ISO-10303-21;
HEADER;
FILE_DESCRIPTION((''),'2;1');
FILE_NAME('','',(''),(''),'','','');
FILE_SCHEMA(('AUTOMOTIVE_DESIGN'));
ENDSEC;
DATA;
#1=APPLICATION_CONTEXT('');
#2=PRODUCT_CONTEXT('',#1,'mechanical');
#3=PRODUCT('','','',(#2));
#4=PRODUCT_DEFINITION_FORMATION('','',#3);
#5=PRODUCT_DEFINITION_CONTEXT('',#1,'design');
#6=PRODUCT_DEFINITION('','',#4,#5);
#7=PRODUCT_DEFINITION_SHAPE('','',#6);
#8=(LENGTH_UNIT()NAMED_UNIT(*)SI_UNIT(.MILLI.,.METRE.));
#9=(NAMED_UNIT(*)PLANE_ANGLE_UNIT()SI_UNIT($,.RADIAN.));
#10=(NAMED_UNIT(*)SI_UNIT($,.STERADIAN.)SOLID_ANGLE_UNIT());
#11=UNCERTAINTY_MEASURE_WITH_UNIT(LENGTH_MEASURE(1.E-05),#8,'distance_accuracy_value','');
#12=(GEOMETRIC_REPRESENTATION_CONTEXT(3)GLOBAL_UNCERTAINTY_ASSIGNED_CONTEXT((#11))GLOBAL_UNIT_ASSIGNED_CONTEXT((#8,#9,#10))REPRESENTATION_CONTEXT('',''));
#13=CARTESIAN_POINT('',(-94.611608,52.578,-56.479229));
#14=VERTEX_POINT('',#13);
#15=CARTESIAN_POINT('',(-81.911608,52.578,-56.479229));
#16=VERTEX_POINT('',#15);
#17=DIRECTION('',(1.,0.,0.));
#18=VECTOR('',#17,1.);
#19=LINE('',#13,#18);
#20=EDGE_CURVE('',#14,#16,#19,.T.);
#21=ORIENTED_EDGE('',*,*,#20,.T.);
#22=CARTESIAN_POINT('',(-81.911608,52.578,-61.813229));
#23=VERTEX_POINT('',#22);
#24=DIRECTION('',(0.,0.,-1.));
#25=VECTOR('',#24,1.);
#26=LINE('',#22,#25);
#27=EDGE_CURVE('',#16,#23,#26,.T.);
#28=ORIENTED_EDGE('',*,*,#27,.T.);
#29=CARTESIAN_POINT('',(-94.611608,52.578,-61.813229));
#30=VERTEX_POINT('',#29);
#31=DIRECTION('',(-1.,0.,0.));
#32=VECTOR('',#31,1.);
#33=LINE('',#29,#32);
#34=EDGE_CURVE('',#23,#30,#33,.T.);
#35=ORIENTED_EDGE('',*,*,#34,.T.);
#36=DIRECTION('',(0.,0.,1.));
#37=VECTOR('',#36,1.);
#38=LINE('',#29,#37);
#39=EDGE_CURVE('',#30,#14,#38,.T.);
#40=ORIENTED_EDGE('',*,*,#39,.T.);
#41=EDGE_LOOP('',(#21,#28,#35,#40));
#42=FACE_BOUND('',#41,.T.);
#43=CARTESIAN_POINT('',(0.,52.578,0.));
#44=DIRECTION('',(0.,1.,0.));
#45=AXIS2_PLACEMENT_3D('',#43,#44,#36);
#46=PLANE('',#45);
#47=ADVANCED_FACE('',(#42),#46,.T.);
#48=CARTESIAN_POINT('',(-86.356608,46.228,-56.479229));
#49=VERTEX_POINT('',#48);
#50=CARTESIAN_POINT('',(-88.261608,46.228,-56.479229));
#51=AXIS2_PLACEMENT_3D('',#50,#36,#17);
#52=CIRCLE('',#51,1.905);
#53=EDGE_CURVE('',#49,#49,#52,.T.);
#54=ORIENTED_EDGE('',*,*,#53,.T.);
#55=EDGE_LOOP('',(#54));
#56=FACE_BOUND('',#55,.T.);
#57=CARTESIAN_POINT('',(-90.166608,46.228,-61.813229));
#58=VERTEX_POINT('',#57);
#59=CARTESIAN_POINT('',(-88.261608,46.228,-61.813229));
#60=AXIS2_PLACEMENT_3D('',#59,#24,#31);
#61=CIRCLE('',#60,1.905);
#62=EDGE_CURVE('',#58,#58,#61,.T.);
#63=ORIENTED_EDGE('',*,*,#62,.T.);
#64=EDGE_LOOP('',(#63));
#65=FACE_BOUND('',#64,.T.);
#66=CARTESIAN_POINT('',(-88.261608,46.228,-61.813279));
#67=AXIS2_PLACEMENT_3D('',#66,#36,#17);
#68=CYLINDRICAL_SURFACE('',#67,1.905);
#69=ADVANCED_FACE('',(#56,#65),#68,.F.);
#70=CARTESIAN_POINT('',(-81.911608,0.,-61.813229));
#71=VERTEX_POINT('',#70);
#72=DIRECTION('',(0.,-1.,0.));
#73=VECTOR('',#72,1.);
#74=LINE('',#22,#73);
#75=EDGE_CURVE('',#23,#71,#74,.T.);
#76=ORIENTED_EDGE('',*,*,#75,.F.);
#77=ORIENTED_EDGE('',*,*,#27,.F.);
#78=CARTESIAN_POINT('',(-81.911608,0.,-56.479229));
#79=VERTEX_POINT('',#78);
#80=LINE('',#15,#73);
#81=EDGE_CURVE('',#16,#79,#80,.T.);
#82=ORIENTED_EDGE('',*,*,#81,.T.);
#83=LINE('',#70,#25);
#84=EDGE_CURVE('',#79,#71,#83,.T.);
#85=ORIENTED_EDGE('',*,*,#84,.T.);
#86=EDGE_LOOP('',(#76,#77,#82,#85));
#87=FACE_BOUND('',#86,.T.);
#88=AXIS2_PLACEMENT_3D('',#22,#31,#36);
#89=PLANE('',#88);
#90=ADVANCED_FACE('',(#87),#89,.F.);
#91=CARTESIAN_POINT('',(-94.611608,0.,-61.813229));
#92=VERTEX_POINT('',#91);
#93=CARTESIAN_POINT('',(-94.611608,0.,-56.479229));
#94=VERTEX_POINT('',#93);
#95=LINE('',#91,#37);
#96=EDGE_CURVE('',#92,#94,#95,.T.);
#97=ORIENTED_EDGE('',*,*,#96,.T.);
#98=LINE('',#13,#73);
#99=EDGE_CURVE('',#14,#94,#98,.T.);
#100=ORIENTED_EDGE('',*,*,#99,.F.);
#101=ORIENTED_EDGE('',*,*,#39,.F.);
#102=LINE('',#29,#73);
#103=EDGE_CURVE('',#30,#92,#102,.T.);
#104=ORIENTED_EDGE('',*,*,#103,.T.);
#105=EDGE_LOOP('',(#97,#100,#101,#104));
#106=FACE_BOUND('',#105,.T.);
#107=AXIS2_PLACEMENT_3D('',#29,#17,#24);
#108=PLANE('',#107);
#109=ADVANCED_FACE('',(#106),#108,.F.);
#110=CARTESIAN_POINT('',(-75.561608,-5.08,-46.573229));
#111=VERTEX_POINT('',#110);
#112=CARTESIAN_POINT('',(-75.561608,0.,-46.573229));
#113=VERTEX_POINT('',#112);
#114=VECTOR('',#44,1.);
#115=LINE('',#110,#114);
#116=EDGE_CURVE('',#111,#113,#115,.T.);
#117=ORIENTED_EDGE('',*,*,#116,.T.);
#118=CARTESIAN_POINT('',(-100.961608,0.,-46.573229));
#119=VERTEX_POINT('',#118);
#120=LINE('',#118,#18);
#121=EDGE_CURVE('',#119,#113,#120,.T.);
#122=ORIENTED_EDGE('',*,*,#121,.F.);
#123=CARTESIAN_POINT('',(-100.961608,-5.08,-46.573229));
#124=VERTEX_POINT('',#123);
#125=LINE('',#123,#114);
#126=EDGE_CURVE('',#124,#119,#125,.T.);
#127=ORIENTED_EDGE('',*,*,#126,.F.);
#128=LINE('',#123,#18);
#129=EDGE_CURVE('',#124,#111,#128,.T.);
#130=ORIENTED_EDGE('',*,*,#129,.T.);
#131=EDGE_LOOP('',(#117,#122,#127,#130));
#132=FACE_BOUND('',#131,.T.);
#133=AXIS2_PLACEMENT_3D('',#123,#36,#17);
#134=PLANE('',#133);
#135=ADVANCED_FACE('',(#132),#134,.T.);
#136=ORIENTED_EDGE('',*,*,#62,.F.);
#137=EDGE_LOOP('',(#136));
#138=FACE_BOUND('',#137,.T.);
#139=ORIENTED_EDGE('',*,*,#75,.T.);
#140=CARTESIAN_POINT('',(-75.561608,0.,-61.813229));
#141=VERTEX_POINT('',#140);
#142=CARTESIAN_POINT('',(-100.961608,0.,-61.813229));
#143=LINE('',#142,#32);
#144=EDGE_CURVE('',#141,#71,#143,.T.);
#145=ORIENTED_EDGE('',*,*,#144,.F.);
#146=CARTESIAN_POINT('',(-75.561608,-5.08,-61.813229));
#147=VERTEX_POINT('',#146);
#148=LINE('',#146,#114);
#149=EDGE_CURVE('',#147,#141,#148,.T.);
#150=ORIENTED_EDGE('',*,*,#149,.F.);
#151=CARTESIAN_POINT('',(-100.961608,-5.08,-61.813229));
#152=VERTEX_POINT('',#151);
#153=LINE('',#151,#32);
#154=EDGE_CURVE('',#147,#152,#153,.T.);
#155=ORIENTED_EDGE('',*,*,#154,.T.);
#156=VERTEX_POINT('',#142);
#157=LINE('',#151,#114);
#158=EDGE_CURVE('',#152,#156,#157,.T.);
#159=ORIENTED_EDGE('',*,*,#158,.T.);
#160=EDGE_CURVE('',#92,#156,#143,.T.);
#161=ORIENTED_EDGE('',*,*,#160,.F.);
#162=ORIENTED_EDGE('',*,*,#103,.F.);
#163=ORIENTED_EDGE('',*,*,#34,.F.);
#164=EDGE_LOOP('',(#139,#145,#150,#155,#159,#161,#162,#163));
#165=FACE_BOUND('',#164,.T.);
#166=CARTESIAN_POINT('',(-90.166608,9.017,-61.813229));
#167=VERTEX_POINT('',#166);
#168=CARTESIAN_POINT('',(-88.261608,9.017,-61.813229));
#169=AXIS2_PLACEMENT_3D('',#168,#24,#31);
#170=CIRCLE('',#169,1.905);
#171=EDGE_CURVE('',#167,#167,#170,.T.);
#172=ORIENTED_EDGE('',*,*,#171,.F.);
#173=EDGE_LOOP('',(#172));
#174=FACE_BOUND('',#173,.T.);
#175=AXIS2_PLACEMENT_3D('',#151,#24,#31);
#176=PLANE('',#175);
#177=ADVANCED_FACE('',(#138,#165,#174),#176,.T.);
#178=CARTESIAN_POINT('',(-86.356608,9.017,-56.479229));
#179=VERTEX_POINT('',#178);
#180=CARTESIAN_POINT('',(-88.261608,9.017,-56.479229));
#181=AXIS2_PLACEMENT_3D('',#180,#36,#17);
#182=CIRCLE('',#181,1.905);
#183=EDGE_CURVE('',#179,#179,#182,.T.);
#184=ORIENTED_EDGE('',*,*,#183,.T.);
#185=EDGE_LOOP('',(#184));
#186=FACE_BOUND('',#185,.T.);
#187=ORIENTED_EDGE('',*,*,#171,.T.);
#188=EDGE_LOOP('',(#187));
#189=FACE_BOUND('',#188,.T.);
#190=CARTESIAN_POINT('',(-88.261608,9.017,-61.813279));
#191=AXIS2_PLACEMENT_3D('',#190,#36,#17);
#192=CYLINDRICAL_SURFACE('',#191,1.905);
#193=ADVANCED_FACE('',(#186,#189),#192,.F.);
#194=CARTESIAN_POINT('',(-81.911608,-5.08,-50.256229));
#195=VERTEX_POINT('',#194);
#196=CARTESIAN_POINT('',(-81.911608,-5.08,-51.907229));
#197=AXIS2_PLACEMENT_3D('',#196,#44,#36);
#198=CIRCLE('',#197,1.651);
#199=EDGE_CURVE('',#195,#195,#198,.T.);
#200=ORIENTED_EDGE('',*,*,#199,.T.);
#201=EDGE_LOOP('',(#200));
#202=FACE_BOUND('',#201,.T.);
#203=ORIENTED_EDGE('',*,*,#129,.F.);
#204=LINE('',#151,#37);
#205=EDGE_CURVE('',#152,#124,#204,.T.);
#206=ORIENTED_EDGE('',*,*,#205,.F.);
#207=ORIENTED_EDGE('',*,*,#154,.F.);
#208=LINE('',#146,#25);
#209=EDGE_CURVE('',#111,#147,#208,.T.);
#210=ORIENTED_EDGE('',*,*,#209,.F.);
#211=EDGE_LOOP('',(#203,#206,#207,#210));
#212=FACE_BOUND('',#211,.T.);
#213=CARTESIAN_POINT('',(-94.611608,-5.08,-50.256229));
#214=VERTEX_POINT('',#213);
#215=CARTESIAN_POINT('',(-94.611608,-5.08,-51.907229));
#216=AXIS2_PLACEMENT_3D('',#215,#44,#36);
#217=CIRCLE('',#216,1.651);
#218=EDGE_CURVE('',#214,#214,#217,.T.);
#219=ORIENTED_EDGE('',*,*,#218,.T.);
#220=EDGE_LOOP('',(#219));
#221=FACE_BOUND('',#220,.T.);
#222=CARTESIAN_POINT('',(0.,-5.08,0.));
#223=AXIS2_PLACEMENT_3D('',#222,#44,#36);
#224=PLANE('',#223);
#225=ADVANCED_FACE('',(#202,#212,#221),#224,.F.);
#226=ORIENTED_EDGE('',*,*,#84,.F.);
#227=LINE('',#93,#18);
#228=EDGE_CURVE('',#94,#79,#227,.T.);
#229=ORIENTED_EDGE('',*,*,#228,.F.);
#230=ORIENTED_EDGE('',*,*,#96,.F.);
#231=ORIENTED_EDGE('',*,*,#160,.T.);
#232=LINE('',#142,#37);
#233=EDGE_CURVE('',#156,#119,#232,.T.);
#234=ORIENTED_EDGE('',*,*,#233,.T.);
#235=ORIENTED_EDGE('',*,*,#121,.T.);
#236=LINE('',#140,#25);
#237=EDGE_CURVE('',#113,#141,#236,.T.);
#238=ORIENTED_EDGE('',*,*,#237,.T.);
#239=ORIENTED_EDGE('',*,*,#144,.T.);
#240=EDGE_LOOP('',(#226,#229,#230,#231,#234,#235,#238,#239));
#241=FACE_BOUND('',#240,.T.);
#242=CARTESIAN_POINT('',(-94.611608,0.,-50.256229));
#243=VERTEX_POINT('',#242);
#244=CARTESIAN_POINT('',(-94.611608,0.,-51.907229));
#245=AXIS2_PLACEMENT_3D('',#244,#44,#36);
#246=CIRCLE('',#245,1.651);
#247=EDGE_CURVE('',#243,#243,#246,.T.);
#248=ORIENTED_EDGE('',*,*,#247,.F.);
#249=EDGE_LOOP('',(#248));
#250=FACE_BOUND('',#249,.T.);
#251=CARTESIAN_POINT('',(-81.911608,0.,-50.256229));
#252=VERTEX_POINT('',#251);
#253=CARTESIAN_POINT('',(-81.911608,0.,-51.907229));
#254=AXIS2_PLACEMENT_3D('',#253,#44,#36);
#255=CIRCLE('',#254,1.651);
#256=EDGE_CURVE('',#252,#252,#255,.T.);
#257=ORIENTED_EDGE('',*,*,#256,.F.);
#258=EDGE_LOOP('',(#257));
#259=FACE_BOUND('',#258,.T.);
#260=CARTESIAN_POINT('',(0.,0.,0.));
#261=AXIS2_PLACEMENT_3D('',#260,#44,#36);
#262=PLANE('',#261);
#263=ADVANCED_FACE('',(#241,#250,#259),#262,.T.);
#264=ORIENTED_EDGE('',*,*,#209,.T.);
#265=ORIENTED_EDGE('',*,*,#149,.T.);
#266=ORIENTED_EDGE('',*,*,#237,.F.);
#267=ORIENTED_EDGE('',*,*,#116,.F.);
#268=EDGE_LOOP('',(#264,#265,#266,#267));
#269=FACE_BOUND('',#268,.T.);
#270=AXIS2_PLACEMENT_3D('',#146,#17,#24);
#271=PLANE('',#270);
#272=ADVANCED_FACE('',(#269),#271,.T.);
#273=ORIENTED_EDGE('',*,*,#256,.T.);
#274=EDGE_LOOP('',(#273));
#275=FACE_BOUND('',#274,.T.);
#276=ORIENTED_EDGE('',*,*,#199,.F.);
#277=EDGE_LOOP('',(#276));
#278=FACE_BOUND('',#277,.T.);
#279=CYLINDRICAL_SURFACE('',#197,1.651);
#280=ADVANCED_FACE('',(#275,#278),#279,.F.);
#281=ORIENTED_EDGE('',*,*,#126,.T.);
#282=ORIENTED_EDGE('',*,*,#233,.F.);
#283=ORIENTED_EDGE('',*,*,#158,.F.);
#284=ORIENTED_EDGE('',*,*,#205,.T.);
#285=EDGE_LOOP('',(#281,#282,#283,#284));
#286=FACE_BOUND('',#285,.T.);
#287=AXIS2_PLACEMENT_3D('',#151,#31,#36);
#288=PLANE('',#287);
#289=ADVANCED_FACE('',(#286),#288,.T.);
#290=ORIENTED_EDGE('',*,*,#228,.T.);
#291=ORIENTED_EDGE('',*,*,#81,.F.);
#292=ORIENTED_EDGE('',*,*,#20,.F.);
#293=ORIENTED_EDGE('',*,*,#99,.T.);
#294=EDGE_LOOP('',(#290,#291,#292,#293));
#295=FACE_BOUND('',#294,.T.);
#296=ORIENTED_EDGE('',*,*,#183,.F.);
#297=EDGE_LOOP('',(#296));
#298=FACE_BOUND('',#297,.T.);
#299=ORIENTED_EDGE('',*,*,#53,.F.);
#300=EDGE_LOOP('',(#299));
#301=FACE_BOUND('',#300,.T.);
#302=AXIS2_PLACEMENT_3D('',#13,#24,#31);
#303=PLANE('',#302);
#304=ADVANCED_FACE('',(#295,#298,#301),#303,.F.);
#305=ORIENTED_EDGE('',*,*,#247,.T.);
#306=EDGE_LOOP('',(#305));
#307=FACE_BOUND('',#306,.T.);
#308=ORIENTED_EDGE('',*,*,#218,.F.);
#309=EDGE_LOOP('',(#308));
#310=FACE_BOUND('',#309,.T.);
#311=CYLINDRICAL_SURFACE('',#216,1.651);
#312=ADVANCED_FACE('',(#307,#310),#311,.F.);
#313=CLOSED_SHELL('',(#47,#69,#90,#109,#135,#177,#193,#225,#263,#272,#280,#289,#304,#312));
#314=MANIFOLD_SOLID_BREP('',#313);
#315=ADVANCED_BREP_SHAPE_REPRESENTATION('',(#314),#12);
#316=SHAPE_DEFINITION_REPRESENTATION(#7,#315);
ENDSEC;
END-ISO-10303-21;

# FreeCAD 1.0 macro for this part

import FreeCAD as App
import Part
import Sketcher
from FreeCAD import Vector
Q = App.Units.Quantity


def add_polygon(sketch, points):
    """Adds a closed chain of lines whose ends are joined by coincident constraints."""
    first, n = sketch.GeometryCount, len(points)
    for a, b in zip(points, points[1:] + points[:1]):
        sketch.addGeometry(Part.LineSegment(App.Vector(*a, 0), App.Vector(*b, 0)), False)
    for i in range(n):
        sketch.addConstraint(Sketcher.Constraint("Coincident", first + i, 2, first + (i + 1) % n, 1))

doc = App.newDocument("Part")
body = doc.addObject("PartDesign::Body", "Body")

# Sketch on XZ plane
sketch1 = doc.addObject("Sketcher::SketchObject", "Sketch")
body.addObject(sketch1)
sketch1.AttachmentSupport = (doc.XZ_Plane, [""])
sketch1.MapMode = "FlatFace"
add_polygon(sketch1, [(-101, -62), (-101, -47), (-76, -47), (-76, -62)])  # lines 0-3
sketch1.addConstraint([
    Sketcher.Constraint("Vertical", 0),
    Sketcher.Constraint("Horizontal", 1),
    Sketcher.Constraint("Vertical", 2),
    Sketcher.Constraint("Horizontal", 3),
    Sketcher.Constraint("DistanceX", 1, 1, 1, 2, Q("1 in")),
    Sketcher.Constraint("DistanceY", 0, 1, 0, 2, Q("0.6 in")),
    Sketcher.Constraint("DistanceX", 0, 2, -1, 1, 100.961608),
    Sketcher.Constraint("DistanceY", 0, 2, -1, 1, 46.573229),
])
pad1 = doc.addObject("PartDesign::Pad", "Pad")
body.addObject(pad1)
pad1.Profile = sketch1
pad1.Length = Q("0.2 in")

# Sketch on XZ plane
sketch2 = doc.addObject("Sketcher::SketchObject", "Sketch001")
body.addObject(sketch2)
sketch2.AttachmentSupport = (doc.XZ_Plane, [""])
sketch2.MapMode = "FlatFace"
sketch2.addGeometry([
    Part.Circle(Vector(-94.6, -51.9, 0), Vector(0, 0, 1), 1.7),
    Part.Circle(Vector(-81.9, -51.9, 0), Vector(0, 0, 1), 1.7),
], False)
sketch2.addConstraint([
    Sketcher.Constraint("Equal", 0, 1),
    Sketcher.Constraint("Horizontal", 0, 3, 1, 3),
    Sketcher.Constraint("Diameter", 0, Q("0.13 in")),
    Sketcher.Constraint("DistanceX", 0, 3, 1, 3, Q("0.5 in")),
    Sketcher.Constraint("DistanceX", 0, 3, -1, 1, 94.611608),
    Sketcher.Constraint("DistanceY", 0, 3, -1, 1, 51.907229),
])
pocket1 = doc.addObject("PartDesign::Pocket", "Pocket")
body.addObject(pocket1)
pocket1.Profile = sketch2
pocket1.Type = "ThroughAll"
pocket1.Reversed = True

# Sketch on XZ plane
sketch3 = doc.addObject("Sketcher::SketchObject", "Sketch002")
body.addObject(sketch3)
sketch3.AttachmentSupport = (doc.XZ_Plane, [""])
sketch3.MapMode = "FlatFace"
add_polygon(sketch3, [(-95, -62), (-95, -56), (-82, -56), (-82, -62)])  # lines 0-3
sketch3.addConstraint([
    Sketcher.Constraint("Vertical", 0),
    Sketcher.Constraint("Horizontal", 1),
    Sketcher.Constraint("Vertical", 2),
    Sketcher.Constraint("Horizontal", 3),
    Sketcher.Constraint("DistanceX", 1, 1, 1, 2, Q("0.5 in")),
    Sketcher.Constraint("DistanceY", 0, 1, 0, 2, Q("0.21 in")),
    Sketcher.Constraint("DistanceX", 0, 2, -1, 1, 94.611608),
    Sketcher.Constraint("DistanceY", 0, 2, -1, 1, 56.479229),
])
pad2 = doc.addObject("PartDesign::Pad", "Pad001")
body.addObject(pad2)
pad2.Profile = sketch3
pad2.Length = Q("2.07 in")
pad2.Reversed = True

# Sketch on XY plane
sketch4 = doc.addObject("Sketcher::SketchObject", "Sketch003")
body.addObject(sketch4)
sketch4.AttachmentSupport = (doc.XY_Plane, [""])
sketch4.MapMode = "FlatFace"
sketch4.AttachmentOffset = App.Placement(Vector(0, 0, -56.479229), App.Rotation())
sketch4.addGeometry([
    Part.Circle(Vector(-88.3, 46.2, 0), Vector(0, 0, 1), 1.9),
    Part.Circle(Vector(-88.3, 9, 0), Vector(0, 0, 1), 1.9),
], False)
sketch4.addConstraint([
    Sketcher.Constraint("Equal", 0, 1),
    Sketcher.Constraint("Vertical", 0, 3, 1, 3),
    Sketcher.Constraint("Diameter", 0, Q("0.15 in")),
    Sketcher.Constraint("DistanceY", -1, 1, 0, 3, Q("1.82 in")),
    Sketcher.Constraint("DistanceY", -1, 1, 1, 3, Q("0.355 in")),
    Sketcher.Constraint("DistanceX", 0, 3, -1, 1, 88.261608),
])
pocket2 = doc.addObject("PartDesign::Pocket", "Pocket001")
body.addObject(pocket2)
pocket2.Profile = sketch4
pocket2.Type = "ThroughAll"

doc.recompute()
